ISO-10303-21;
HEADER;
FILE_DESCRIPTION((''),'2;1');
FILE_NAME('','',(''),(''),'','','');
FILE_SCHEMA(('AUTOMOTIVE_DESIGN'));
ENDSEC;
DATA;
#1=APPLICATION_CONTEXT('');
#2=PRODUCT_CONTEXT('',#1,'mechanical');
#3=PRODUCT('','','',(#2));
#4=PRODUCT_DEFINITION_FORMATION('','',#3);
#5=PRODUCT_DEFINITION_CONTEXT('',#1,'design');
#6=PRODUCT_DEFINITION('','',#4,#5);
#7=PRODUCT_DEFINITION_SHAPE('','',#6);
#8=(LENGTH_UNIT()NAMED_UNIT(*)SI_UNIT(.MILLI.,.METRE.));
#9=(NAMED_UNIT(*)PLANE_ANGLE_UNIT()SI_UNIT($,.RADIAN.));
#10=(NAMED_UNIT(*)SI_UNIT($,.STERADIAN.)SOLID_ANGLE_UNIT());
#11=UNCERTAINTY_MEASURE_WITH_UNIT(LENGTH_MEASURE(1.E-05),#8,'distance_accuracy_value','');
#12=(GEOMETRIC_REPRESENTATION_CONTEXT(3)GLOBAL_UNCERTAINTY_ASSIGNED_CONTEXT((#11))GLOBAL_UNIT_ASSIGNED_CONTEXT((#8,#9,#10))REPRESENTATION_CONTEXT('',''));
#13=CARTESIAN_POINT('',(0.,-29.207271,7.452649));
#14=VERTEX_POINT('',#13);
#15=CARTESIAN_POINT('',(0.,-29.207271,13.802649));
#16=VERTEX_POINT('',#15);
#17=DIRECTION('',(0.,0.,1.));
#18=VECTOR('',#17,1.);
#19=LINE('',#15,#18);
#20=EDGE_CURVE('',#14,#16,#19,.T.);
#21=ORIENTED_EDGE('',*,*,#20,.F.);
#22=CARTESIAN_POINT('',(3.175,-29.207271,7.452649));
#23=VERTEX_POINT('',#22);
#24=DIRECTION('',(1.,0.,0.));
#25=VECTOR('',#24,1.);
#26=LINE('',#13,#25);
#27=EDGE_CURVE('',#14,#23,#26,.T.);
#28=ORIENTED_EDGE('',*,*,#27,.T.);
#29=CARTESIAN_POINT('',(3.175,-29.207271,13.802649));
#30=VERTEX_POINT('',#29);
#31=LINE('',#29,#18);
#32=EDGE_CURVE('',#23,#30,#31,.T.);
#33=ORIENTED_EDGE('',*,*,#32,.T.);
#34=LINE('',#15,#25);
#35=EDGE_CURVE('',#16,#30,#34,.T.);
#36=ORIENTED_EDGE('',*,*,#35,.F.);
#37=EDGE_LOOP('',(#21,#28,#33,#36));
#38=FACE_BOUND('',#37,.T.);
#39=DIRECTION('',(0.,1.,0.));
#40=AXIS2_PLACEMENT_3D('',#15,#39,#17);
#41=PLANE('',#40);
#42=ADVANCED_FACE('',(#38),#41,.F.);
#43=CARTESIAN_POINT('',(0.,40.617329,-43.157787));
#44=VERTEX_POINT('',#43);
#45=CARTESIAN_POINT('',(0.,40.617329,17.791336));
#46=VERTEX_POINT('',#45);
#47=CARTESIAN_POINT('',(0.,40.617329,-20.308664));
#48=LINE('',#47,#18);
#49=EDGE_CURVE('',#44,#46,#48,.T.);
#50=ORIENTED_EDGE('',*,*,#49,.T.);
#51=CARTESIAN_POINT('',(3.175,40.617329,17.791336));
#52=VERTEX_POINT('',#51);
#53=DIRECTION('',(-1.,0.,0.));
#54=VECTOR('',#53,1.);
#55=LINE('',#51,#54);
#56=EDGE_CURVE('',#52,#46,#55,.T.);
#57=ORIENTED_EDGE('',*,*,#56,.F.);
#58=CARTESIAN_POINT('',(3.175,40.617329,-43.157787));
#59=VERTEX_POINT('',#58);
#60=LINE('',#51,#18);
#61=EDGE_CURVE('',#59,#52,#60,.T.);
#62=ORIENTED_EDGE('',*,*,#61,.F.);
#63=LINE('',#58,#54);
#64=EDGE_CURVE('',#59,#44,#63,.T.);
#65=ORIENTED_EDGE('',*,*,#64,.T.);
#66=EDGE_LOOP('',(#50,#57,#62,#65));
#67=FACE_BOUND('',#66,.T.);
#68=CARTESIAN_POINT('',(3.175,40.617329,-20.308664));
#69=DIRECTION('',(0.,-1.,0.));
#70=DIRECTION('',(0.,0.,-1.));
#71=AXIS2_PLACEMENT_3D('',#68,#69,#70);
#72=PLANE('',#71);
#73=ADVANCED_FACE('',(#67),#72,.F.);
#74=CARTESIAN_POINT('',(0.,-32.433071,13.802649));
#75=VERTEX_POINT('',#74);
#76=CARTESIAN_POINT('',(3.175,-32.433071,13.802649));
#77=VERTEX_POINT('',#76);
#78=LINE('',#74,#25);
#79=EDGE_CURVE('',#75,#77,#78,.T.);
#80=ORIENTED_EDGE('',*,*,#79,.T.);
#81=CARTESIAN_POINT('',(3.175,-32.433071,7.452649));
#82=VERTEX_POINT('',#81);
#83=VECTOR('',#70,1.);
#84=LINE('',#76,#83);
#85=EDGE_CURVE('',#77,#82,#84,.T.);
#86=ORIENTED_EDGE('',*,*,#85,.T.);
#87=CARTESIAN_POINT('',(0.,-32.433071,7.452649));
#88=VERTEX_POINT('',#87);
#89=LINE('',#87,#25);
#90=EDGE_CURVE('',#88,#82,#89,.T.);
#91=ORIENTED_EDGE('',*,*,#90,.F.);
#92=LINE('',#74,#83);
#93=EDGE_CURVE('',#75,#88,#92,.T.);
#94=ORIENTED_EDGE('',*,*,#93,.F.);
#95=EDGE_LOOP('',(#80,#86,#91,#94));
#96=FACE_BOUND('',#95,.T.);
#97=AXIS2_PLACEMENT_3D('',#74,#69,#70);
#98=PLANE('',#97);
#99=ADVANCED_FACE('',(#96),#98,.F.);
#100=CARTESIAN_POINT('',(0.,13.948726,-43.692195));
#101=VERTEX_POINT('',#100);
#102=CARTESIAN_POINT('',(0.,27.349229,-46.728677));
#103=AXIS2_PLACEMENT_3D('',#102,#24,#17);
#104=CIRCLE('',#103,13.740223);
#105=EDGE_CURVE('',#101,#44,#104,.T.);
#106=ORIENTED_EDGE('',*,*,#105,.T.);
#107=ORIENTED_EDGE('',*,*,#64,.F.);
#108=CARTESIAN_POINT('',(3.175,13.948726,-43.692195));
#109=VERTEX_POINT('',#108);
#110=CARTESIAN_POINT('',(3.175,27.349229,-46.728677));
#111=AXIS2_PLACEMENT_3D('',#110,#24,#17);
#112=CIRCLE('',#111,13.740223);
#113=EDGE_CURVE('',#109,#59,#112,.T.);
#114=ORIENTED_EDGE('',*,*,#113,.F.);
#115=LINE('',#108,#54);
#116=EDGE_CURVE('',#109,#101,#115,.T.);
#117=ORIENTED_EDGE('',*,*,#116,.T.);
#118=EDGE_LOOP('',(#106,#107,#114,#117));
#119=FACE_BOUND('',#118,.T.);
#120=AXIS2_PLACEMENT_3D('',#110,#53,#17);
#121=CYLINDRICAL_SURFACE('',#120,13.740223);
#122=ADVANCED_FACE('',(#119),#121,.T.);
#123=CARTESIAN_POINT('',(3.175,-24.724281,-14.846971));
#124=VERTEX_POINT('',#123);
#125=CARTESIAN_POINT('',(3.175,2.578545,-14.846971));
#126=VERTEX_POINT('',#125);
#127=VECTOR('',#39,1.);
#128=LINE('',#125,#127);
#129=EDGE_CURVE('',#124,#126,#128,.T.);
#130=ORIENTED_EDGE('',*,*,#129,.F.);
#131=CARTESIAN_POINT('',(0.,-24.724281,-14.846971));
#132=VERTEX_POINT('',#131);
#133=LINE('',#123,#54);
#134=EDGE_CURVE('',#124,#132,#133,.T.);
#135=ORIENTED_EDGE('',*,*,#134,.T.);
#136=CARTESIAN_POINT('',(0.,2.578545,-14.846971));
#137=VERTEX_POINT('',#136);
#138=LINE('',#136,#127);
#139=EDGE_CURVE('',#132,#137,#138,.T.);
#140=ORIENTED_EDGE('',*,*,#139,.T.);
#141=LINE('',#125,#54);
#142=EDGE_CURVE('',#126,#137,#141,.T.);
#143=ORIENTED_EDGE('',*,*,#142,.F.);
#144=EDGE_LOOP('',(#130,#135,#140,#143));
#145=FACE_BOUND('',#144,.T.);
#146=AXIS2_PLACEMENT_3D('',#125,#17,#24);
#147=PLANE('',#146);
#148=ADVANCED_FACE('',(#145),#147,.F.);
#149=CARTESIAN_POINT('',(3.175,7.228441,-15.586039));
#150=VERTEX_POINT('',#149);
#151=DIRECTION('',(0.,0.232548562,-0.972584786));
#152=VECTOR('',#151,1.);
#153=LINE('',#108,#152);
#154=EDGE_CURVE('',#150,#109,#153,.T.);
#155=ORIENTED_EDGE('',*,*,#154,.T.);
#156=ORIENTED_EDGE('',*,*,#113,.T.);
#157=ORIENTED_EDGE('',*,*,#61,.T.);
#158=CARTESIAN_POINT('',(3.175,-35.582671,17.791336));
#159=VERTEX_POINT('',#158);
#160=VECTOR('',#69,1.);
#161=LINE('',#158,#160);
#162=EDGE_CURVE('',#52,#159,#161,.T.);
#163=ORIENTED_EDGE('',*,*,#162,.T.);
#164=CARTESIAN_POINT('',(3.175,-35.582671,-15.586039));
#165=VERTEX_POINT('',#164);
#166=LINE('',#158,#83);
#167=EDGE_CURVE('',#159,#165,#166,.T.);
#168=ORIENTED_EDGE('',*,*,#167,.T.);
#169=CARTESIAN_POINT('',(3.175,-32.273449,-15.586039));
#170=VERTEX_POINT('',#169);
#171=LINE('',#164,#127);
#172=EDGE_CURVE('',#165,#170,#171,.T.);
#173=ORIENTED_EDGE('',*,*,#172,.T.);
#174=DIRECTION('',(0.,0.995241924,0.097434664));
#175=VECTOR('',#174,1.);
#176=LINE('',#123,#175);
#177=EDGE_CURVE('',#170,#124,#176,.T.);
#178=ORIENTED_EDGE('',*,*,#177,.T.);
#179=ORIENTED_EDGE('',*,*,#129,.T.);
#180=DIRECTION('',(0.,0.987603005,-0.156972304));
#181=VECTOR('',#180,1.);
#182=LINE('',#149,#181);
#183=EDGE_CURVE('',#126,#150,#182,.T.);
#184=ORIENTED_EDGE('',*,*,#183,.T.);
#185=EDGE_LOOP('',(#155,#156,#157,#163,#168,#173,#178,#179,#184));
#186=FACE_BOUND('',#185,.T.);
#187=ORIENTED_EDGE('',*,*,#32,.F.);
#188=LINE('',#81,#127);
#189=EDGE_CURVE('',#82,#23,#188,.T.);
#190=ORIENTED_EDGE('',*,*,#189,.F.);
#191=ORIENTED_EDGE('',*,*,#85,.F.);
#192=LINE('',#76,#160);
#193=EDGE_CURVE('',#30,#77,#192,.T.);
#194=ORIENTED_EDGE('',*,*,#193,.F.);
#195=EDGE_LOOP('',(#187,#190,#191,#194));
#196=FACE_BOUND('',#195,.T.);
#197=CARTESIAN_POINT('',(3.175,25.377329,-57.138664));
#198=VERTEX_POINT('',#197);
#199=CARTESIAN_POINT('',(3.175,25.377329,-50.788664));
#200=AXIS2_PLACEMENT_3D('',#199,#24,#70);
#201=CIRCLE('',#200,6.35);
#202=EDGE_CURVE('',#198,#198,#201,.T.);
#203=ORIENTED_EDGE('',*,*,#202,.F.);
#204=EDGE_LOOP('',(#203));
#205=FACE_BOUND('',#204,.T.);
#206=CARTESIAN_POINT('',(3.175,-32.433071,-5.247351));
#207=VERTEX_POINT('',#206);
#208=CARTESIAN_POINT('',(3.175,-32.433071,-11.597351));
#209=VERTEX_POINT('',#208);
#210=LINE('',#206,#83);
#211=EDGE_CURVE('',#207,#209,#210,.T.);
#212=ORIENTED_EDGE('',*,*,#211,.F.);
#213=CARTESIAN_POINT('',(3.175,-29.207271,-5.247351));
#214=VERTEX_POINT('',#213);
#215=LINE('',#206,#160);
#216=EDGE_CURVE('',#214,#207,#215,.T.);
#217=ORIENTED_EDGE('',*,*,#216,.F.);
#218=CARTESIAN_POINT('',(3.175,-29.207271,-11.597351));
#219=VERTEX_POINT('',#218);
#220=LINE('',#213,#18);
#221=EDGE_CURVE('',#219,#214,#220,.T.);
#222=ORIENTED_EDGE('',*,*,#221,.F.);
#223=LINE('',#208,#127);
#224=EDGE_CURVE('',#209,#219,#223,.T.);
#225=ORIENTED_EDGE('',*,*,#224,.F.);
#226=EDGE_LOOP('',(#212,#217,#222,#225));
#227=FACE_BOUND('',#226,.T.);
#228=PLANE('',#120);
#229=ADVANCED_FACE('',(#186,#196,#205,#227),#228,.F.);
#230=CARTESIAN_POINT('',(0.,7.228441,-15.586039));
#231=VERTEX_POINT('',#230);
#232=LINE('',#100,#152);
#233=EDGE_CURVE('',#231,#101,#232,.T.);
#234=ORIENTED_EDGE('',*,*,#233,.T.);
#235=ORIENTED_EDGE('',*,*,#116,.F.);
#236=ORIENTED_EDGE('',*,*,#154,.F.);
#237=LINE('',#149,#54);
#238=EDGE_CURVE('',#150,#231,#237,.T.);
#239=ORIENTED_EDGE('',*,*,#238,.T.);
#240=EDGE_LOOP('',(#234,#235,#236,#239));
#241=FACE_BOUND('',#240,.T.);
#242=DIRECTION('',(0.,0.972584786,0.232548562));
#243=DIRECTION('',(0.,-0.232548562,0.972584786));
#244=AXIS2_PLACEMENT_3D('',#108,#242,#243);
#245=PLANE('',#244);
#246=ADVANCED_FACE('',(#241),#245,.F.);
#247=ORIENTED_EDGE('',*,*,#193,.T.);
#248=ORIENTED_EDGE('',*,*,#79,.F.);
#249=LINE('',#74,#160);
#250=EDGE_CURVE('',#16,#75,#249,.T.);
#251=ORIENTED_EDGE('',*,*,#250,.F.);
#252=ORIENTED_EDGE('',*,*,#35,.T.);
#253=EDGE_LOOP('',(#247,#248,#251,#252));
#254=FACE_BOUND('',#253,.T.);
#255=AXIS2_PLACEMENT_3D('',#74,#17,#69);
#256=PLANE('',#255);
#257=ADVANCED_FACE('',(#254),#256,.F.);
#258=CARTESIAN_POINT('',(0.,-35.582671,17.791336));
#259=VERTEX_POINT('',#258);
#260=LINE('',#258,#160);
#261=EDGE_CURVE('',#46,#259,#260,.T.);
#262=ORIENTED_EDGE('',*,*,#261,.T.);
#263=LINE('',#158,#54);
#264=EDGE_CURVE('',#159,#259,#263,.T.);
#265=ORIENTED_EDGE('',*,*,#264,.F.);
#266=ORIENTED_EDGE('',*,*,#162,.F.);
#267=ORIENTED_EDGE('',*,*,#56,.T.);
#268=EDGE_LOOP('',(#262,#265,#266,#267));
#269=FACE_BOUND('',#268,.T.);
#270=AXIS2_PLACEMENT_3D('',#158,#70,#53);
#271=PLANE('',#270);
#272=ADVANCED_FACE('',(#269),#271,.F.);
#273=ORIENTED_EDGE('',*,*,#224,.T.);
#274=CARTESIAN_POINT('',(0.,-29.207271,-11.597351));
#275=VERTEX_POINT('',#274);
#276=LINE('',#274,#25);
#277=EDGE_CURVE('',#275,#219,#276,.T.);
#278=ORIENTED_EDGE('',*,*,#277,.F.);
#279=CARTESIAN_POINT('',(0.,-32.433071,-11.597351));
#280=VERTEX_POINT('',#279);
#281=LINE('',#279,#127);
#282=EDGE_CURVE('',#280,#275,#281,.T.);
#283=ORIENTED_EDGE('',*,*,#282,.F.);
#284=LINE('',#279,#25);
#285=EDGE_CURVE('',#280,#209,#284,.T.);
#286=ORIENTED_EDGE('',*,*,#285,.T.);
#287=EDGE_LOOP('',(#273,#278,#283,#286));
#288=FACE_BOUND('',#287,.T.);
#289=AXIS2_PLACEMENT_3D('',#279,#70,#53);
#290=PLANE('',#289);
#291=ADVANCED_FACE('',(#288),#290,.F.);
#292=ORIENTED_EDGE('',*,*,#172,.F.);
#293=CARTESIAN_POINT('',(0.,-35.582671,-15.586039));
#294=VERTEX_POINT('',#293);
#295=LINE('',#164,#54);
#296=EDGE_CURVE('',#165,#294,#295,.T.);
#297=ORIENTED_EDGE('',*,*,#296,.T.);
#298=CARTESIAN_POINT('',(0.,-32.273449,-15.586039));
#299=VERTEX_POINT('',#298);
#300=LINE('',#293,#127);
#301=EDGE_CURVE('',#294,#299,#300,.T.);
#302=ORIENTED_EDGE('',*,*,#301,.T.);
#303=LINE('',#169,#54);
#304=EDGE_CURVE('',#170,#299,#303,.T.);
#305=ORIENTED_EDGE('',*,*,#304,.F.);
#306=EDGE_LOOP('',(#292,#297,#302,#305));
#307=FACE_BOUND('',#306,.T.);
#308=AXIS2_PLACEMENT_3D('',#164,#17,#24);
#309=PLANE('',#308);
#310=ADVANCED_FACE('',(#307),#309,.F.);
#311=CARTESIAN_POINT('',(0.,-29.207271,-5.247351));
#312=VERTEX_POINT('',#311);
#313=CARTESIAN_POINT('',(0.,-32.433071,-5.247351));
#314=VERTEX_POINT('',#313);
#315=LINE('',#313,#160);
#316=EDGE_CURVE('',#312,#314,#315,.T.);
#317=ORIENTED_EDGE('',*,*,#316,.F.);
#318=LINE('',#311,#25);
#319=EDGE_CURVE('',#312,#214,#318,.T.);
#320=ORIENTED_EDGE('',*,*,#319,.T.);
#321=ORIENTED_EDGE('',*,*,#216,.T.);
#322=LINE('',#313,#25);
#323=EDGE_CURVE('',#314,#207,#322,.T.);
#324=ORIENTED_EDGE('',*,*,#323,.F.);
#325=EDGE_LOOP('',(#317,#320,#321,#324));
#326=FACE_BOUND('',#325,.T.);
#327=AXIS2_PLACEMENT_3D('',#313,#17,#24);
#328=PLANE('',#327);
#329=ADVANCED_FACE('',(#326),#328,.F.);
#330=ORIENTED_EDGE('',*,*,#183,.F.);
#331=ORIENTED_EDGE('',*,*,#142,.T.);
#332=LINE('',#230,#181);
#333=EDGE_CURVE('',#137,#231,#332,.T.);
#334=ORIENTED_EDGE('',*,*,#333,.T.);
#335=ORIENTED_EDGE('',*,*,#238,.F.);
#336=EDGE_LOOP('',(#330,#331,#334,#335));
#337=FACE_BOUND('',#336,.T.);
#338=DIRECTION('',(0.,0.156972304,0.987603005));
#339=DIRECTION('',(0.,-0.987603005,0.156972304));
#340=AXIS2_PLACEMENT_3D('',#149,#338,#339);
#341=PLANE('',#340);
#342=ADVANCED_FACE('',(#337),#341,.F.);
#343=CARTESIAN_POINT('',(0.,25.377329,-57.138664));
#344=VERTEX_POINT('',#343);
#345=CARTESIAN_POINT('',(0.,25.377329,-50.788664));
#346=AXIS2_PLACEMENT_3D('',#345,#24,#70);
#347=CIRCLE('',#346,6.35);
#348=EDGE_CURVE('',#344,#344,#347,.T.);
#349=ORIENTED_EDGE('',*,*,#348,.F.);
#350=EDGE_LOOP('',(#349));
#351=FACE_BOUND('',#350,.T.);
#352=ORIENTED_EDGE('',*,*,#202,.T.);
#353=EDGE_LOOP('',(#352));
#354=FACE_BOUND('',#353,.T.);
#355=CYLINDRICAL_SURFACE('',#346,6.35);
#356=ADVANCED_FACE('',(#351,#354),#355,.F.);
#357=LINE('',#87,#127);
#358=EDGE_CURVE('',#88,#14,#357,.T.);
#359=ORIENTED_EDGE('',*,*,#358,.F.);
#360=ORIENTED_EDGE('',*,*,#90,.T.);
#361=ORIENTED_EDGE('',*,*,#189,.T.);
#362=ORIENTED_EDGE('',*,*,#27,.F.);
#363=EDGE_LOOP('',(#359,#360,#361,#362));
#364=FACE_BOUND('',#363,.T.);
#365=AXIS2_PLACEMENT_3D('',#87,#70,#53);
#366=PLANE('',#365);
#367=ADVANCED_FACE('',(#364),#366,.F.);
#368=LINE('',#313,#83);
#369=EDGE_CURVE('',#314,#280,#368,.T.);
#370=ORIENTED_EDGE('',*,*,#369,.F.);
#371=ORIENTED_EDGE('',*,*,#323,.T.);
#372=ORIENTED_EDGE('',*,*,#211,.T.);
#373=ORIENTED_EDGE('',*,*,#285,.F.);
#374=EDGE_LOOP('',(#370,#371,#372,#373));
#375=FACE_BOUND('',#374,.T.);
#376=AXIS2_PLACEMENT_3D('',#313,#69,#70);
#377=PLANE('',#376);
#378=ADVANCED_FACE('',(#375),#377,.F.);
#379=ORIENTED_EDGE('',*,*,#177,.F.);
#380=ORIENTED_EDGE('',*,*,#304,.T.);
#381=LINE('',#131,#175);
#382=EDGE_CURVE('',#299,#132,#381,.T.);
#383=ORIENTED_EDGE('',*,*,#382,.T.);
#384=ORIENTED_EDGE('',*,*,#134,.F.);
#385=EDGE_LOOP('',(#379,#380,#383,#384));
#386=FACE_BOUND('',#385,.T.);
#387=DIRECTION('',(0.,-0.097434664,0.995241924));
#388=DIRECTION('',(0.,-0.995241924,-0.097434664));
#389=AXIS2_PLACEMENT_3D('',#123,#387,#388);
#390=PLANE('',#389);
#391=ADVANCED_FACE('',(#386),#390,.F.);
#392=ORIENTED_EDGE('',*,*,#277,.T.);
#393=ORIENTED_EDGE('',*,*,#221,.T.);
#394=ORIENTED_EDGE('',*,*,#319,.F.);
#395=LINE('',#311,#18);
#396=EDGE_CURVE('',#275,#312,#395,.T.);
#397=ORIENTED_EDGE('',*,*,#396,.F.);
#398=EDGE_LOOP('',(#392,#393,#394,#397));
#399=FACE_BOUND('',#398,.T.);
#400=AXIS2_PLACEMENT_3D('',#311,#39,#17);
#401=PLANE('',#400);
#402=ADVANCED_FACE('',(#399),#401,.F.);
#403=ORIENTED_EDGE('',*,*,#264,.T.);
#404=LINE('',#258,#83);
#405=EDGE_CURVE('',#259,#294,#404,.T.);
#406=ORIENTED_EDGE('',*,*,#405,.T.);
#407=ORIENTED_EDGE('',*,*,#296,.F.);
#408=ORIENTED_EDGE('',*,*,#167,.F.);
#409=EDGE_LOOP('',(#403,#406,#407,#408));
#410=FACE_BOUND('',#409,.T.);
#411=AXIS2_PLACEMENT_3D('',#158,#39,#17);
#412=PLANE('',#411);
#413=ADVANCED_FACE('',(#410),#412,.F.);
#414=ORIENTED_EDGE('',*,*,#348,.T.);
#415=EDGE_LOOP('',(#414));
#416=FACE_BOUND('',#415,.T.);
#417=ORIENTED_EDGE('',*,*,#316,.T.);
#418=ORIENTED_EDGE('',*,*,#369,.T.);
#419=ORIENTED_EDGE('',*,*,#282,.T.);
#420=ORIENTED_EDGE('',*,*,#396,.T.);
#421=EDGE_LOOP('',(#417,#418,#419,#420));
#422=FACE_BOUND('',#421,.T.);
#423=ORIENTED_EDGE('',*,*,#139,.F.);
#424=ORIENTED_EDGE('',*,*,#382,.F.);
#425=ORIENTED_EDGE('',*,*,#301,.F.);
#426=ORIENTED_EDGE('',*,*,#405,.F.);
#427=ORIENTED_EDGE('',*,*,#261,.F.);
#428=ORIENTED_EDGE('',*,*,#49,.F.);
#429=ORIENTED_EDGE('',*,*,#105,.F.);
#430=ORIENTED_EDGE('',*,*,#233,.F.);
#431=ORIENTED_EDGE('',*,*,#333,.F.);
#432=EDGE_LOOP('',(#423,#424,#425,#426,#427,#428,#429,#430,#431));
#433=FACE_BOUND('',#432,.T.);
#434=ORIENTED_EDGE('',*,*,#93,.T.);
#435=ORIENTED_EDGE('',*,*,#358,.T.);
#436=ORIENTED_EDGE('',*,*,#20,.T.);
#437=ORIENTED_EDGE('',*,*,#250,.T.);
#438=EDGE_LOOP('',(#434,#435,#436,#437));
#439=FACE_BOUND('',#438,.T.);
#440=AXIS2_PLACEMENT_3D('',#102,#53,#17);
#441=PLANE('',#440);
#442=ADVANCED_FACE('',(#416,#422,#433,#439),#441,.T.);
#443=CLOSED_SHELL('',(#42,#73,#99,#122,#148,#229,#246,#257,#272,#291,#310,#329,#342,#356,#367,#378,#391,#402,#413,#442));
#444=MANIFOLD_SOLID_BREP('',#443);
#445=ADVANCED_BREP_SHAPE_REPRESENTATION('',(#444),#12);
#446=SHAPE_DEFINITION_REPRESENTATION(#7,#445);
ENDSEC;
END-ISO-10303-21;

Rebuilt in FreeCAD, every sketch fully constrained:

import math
import FreeCAD as App
import Part
import Sketcher

V = App.Vector
Q = App.Units.Quantity


def add_polygon(sketch, points):
    """Adds a closed chain of lines whose ends are joined by coincident constraints."""
    first, n = sketch.GeometryCount, len(points)
    for a, b in zip(points, points[1:] + points[:1]):
        sketch.addGeometry(Part.LineSegment(App.Vector(*a, 0), App.Vector(*b, 0)), False)
    for i in range(n):
        sketch.addConstraint(Sketcher.Constraint("Coincident", first + i, 2, first + (i + 1) % n, 1))

doc = App.newDocument("Part")
body = doc.addObject("PartDesign::Body", "Body")

# Sketch on YZ plane
sketch1 = body.newObject("Sketcher::SketchObject", "Sketch")
sketch1.AttachmentSupport = (doc.getObject("YZ_Plane"), [""])
sketch1.MapMode = "FlatFace"
sketch1.addGeometry([
    Part.ArcOfCircle(Part.Circle(V(27, -47, 0), V(0, 0, 1), 14), math.radians(167), math.radians(375)),  # 0
    Part.LineSegment(V(41, -43, 0), V(41, 18, 0)),  # 1
    Part.LineSegment(V(41, 18, 0), V(-36, 18, 0)),  # 2
    Part.LineSegment(V(-36, 18, 0), V(-36, -16, 0)),  # 3
    Part.LineSegment(V(-36, -16, 0), V(7, -16, 0)),  # 4
    Part.LineSegment(V(7, -16, 0), V(14, -44, 0)),  # 5
], False)
sketch1.addConstraint([
    Sketcher.Constraint("Coincident", 0, 2, 1, 1),
    Sketcher.Constraint("Coincident", 1, 2, 2, 1),
    Sketcher.Constraint("Coincident", 2, 2, 3, 1),
    Sketcher.Constraint("Coincident", 3, 2, 4, 1),
    Sketcher.Constraint("Coincident", 4, 2, 5, 1),
    Sketcher.Constraint("Coincident", 5, 2, 0, 1),
    Sketcher.Constraint("Vertical", 1),
    Sketcher.Constraint("Horizontal", 2),
    Sketcher.Constraint("Vertical", 3),
    Sketcher.Constraint("Horizontal", 4),
    Sketcher.Constraint("DistanceX", 2, 2, 2, 1, Q("3 in")),
    Sketcher.Constraint("Radius", 0, Q("13.740223 mm")),
    Sketcher.Constraint("DistanceX", 0, 3, 0, 2, Q("13.268099 mm")),
    Sketcher.Constraint("DistanceX", 4, 1, 4, 2, Q("42.811113 mm")),
    Sketcher.Constraint("DistanceY", 1, 1, 1, 2, Q("60.949122 mm")),
    Sketcher.Constraint("DistanceY", 3, 2, 3, 1, Q("33.377374 mm")),
    Sketcher.Constraint("DistanceX", -1, 1, 0, 3, Q("27.349229 mm")),
    Sketcher.Constraint("DistanceY", 3, 2, -1, 1, Q("15.586039 mm")),
    Sketcher.Constraint("DistanceY", 5, 2, 0, 2, Q("0.534408 mm")),
])
pad1 = body.newObject("PartDesign::Pad", "Pad")
pad1.Profile = sketch1
pad1.Length = Q("0.125 in")

# Sketch on YZ plane
sketch2 = body.newObject("Sketcher::SketchObject", "Sketch001")
sketch2.AttachmentSupport = (doc.getObject("YZ_Plane"), [""])
sketch2.MapMode = "FlatFace"
sketch2.AttachmentOffset = App.Placement(V(0, 0, 0.125 * 25.4), App.Rotation())
sketch2.addGeometry(Part.Circle(V(25, -51, 0), V(0, 0, 1), 6), False)
sketch2.addConstraint([
    Sketcher.Constraint("Diameter", 0, Q("0.5 in")),
    Sketcher.Constraint("DistanceX", -1, 1, 0, 3, Q("25.377329 mm")),
    Sketcher.Constraint("DistanceY", 0, 3, -1, 1, Q("50.788664 mm")),
])
pocket1 = body.newObject("PartDesign::Pocket", "Pocket")
pocket1.Profile = sketch2
pocket1.Type = "ThroughAll"

# Sketch on YZ plane
sketch3 = body.newObject("Sketcher::SketchObject", "Sketch002")
sketch3.AttachmentSupport = (doc.getObject("YZ_Plane"), [""])
sketch3.MapMode = "FlatFace"
add_polygon(sketch3, [(2.6, -14.8), (7.2, -15.6), (-32.3, -15.6), (-24.7, -14.8)])  # lines 0-3
sketch3.addConstraint([
    Sketcher.Constraint("Horizontal", 1),
    Sketcher.Constraint("Horizontal", 3),
    Sketcher.Constraint("DistanceX", 1, 2, 1, 1, Q("39.50189 mm")),
    Sketcher.Constraint("Distance", 2, Q("7.58526 mm")),
    Sketcher.Constraint("DistanceX", 3, 1, 3, 2, Q("27.302825 mm")),
    Sketcher.Constraint("DistanceX", -1, 1, 0, 2, Q("7.228441 mm")),
    Sketcher.Constraint("DistanceY", 0, 2, -1, 1, Q("15.586039 mm")),
    Sketcher.Constraint("DistanceX", 2, 2, -1, 1, Q("24.724281 mm")),
])
pocket2 = body.newObject("PartDesign::Pocket", "Pocket001")
pocket2.Profile = sketch3
pocket2.Type = "ThroughAll"
pocket2.Reversed = True

# Sketch on YZ plane
sketch4 = body.newObject("Sketcher::SketchObject", "Sketch003")
sketch4.AttachmentSupport = (doc.getObject("YZ_Plane"), [""])
sketch4.MapMode = "FlatFace"
sketch4.AttachmentOffset = App.Placement(V(0, 0, 0.125 * 25.4), App.Rotation())
add_polygon(sketch4, [(-29.2, 13.8), (-32.4, 13.8), (-32.4, 7.5), (-29.2, 7.5)])  # lines 0-3
add_polygon(sketch4, [(-29.2, -5.2), (-32.4, -5.2), (-32.4, -11.6), (-29.2, -11.6)])  # lines 4-7
sketch4.addConstraint([
    Sketcher.Constraint("Horizontal", 0),
    Sketcher.Constraint("Vertical", 1),
    Sketcher.Constraint("Horizontal", 2),
    Sketcher.Constraint("Vertical", 3),
    Sketcher.Constraint("Horizontal", 4),
    Sketcher.Constraint("Vertical", 5),
    Sketcher.Constraint("Horizontal", 6),
    Sketcher.Constraint("Vertical", 7),
    Sketcher.Constraint("Vertical", 1, 2, 4, 2),
    Sketcher.Constraint("Vertical", 3, 2, 6, 2),
    Sketcher.Constraint("Equal", 3, 5),
    Sketcher.Constraint("DistanceY", 5, 2, 0, 2, Q("1 in")),
    Sketcher.Constraint("DistanceY", 1, 2, 1, 1, Q("0.25 in")),
    Sketcher.Constraint("DistanceX", 0, 2, 0, 1, Q("0.127 in")),
    Sketcher.Constraint("DistanceX", 0, 2, -1, 1, Q("32.433071 mm")),
    Sketcher.Constraint("DistanceY", -1, 1, 0, 2, Q("13.802649 mm")),
])
pocket3 = body.newObject("PartDesign::Pocket", "Pocket002")
pocket3.Profile = sketch4
pocket3.Type = "ThroughAll"

doc.recompute()
